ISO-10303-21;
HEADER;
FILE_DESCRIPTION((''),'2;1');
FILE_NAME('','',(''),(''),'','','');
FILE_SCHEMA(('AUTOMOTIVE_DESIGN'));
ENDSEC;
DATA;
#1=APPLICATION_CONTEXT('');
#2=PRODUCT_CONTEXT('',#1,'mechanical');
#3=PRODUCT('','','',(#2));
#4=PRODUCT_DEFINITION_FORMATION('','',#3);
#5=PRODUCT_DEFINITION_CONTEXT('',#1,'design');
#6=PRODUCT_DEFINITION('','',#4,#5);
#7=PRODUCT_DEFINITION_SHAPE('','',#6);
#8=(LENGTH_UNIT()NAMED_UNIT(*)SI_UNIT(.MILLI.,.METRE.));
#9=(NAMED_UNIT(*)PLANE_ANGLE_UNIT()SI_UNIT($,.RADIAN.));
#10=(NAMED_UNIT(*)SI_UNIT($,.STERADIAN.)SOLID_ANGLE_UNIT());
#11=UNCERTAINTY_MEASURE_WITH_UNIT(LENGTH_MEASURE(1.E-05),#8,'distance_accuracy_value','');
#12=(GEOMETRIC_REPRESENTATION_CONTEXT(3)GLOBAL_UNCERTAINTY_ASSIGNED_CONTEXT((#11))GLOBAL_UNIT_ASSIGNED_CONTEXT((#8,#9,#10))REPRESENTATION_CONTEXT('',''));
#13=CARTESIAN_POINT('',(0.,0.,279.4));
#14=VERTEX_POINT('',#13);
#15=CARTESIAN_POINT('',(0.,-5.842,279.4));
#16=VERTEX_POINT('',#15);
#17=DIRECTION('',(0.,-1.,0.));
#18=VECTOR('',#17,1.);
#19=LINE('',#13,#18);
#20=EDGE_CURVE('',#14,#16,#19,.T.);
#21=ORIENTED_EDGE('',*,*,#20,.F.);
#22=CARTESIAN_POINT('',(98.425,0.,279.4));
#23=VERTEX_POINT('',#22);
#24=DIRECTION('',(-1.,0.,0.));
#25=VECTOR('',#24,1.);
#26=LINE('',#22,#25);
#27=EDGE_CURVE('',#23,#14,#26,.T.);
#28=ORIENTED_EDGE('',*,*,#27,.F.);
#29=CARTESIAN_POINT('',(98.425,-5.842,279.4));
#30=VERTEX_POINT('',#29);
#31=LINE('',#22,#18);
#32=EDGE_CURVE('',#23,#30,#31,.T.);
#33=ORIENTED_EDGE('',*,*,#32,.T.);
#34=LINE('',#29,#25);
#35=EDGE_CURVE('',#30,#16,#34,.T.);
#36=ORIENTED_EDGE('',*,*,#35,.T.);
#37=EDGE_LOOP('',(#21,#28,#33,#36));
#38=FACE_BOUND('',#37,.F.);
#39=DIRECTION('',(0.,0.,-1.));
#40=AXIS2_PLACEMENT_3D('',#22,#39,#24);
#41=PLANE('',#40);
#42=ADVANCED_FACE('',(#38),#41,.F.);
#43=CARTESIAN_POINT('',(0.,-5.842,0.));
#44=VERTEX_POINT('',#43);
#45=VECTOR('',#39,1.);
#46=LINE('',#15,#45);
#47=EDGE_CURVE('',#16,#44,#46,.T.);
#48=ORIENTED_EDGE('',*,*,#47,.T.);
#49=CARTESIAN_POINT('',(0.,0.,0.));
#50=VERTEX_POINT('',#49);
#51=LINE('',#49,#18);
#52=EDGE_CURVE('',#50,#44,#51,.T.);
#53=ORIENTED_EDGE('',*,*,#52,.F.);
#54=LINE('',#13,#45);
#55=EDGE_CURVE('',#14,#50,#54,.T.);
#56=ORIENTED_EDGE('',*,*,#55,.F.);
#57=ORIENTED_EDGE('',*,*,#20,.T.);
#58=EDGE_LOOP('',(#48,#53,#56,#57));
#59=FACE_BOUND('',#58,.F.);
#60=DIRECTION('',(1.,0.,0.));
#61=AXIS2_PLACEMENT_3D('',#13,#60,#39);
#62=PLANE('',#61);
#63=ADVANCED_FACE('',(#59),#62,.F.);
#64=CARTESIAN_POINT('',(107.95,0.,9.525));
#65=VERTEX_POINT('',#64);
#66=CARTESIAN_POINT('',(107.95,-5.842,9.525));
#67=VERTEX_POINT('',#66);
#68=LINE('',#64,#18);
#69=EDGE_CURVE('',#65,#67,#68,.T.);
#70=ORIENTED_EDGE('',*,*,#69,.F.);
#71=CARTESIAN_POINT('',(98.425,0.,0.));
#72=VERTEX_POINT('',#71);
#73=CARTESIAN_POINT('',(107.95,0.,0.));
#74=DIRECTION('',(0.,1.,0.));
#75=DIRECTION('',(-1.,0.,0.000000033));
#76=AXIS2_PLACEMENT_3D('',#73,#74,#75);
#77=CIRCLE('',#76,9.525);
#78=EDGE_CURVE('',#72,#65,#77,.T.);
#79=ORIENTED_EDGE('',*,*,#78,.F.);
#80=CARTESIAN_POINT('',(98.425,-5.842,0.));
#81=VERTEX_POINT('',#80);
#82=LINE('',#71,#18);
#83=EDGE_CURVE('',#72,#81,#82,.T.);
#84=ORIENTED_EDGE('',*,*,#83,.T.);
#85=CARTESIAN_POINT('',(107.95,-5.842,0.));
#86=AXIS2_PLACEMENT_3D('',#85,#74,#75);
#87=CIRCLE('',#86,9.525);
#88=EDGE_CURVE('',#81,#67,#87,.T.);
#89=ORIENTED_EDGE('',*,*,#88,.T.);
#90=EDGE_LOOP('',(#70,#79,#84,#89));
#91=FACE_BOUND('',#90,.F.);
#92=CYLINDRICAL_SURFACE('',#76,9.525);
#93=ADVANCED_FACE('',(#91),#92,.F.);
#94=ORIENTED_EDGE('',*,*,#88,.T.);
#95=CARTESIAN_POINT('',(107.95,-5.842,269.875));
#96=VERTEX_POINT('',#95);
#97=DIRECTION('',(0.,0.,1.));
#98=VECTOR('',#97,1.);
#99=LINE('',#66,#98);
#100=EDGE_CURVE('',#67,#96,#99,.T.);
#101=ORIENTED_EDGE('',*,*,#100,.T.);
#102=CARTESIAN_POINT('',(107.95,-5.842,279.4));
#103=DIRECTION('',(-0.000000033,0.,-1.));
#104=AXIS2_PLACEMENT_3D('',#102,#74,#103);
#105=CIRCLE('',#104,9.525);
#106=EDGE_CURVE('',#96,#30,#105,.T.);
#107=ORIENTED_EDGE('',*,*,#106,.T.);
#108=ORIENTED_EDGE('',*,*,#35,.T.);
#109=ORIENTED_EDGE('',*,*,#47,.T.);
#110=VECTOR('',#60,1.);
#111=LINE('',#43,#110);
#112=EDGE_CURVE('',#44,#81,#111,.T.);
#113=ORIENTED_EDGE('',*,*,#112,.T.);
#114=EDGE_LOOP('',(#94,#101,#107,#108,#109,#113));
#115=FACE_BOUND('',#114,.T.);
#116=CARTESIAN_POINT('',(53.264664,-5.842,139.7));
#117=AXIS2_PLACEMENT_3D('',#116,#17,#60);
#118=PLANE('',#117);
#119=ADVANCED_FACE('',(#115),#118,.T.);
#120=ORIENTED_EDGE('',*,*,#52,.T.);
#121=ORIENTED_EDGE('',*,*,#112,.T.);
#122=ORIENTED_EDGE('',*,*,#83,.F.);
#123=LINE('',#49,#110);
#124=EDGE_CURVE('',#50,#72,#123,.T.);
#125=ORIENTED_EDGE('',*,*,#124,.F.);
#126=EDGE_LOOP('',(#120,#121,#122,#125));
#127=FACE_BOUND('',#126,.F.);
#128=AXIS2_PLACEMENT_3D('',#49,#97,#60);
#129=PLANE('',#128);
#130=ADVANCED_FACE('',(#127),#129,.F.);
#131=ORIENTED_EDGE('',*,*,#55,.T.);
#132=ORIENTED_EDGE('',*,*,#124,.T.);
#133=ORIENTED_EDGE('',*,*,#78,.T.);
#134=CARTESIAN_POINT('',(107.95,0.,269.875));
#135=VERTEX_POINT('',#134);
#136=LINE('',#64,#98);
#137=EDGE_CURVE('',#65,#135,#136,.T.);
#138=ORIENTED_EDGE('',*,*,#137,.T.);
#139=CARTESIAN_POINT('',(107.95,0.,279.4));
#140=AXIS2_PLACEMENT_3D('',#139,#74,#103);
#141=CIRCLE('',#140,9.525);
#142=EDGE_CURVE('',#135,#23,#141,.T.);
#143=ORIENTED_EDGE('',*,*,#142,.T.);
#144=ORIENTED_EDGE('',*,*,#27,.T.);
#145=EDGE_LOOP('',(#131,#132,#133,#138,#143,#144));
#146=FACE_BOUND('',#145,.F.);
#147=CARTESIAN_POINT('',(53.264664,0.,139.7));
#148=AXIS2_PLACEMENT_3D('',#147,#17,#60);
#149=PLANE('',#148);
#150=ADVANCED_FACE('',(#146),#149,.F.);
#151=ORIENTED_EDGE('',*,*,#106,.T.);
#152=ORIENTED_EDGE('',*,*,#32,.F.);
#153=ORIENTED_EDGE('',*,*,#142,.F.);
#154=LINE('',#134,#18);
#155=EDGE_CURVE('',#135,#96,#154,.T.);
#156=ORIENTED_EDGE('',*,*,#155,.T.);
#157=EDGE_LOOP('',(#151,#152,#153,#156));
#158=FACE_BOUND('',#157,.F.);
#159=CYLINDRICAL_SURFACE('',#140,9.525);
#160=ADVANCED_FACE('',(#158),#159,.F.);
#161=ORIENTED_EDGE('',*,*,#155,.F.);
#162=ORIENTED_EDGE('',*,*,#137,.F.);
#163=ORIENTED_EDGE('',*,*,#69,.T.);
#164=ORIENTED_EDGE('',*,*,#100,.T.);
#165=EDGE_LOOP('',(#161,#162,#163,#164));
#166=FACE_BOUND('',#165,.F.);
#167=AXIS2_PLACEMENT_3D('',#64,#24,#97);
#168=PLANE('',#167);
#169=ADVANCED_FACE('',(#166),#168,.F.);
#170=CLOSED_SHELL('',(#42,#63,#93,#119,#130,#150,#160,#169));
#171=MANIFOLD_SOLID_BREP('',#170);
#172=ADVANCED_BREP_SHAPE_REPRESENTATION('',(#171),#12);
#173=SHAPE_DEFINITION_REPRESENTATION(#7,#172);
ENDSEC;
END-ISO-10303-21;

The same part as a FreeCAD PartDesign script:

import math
import FreeCAD as App
import Part
import Sketcher

V = App.Vector
Q = App.Units.Quantity

doc = App.newDocument("Part")
params = doc.addObject("Spreadsheet::Sheet", "Params")
for row, (alias, value) in enumerate([
    ("sketch1_height", "11 in"),
    ("sketch1_radius", "0.375 in"),
    ("sketch1_width", "3.875 in"),
    ("pad1_length", "0.23 in"),
], start=1):
    params.set(f"A{row}", alias)
    params.set(f"B{row}", "=" + value)
    params.setAlias(f"B{row}", alias)

body = doc.addObject("PartDesign::Body", "Body")

# Sketch on XZ plane
sketch1 = body.newObject("Sketcher::SketchObject", "Sketch")
sketch1.AttachmentSupport = (doc.getObject("XZ_Plane"), [""])
sketch1.MapMode = "FlatFace"
sketch1.addGeometry([
    Part.LineSegment(V(98.425, 279.4, 0), V(0, 279.4, 0)),  # 0
    Part.LineSegment(V(0, 279.4, 0), V(0, 0, 0)),  # 1
    Part.LineSegment(V(0, 0, 0), V(98.425, 0, 0)),  # 2
    Part.ArcOfCircle(Part.Circle(V(107.95, 0, 0), V(0, 0, 1), 9.525), math.radians(90.000002), math.radians(179.999998)),  # 3
    Part.LineSegment(V(107.95, 9.525, 0), V(107.95, 269.875, 0)),  # 4
    Part.ArcOfCircle(Part.Circle(V(107.95, 279.4, 0), V(0, 0, 1), 9.525), math.radians(-179.999998), math.radians(-90.000002)),  # 5
], False)
sketch1.addConstraint([
    Sketcher.Constraint("Coincident", 0, 2, 1, 1),
    Sketcher.Constraint("Coincident", 1, 2, 2, 1),
    Sketcher.Constraint("Coincident", 2, 2, 3, 2),
    Sketcher.Constraint("Coincident", 3, 1, 4, 1),
    Sketcher.Constraint("Coincident", 4, 2, 5, 2),
    Sketcher.Constraint("Coincident", 5, 1, 0, 1),
    Sketcher.Constraint("Horizontal", 0),
    Sketcher.Constraint("Vertical", 1),
    Sketcher.Constraint("Horizontal", 2),
    Sketcher.Constraint("Vertical", 4),
    Sketcher.Constraint("Coincident", 1, 2, -1, 1),
    Sketcher.Constraint("Equal", 3, 5),
    Sketcher.Constraint("PointOnObject", 3, 3, -1),
    Sketcher.Constraint("Horizontal", 5, 3, 0, 2),
    Sketcher.Constraint("Vertical", 3, 3, 5, 3),
    Sketcher.Constraint("Vertical", 5, 3, 3, 1),
    Sketcher.Constraint("DistanceY", 1, 2, 1, 1, Q("11 in")),
    Sketcher.Constraint("Radius", 3, Q("0.375 in")),
    Sketcher.Constraint("DistanceX", 0, 2, 0, 1, Q("3.875 in")),
])
sketch1.setExpression("Constraints[16]", "Params.sketch1_height")
sketch1.setExpression("Constraints[17]", "Params.sketch1_radius")
sketch1.setExpression("Constraints[18]", "Params.sketch1_width")
pad1 = body.newObject("PartDesign::Pad", "Pad")
pad1.Profile = sketch1
pad1.setExpression("Length", "Params.pad1_length")

doc.recompute()
